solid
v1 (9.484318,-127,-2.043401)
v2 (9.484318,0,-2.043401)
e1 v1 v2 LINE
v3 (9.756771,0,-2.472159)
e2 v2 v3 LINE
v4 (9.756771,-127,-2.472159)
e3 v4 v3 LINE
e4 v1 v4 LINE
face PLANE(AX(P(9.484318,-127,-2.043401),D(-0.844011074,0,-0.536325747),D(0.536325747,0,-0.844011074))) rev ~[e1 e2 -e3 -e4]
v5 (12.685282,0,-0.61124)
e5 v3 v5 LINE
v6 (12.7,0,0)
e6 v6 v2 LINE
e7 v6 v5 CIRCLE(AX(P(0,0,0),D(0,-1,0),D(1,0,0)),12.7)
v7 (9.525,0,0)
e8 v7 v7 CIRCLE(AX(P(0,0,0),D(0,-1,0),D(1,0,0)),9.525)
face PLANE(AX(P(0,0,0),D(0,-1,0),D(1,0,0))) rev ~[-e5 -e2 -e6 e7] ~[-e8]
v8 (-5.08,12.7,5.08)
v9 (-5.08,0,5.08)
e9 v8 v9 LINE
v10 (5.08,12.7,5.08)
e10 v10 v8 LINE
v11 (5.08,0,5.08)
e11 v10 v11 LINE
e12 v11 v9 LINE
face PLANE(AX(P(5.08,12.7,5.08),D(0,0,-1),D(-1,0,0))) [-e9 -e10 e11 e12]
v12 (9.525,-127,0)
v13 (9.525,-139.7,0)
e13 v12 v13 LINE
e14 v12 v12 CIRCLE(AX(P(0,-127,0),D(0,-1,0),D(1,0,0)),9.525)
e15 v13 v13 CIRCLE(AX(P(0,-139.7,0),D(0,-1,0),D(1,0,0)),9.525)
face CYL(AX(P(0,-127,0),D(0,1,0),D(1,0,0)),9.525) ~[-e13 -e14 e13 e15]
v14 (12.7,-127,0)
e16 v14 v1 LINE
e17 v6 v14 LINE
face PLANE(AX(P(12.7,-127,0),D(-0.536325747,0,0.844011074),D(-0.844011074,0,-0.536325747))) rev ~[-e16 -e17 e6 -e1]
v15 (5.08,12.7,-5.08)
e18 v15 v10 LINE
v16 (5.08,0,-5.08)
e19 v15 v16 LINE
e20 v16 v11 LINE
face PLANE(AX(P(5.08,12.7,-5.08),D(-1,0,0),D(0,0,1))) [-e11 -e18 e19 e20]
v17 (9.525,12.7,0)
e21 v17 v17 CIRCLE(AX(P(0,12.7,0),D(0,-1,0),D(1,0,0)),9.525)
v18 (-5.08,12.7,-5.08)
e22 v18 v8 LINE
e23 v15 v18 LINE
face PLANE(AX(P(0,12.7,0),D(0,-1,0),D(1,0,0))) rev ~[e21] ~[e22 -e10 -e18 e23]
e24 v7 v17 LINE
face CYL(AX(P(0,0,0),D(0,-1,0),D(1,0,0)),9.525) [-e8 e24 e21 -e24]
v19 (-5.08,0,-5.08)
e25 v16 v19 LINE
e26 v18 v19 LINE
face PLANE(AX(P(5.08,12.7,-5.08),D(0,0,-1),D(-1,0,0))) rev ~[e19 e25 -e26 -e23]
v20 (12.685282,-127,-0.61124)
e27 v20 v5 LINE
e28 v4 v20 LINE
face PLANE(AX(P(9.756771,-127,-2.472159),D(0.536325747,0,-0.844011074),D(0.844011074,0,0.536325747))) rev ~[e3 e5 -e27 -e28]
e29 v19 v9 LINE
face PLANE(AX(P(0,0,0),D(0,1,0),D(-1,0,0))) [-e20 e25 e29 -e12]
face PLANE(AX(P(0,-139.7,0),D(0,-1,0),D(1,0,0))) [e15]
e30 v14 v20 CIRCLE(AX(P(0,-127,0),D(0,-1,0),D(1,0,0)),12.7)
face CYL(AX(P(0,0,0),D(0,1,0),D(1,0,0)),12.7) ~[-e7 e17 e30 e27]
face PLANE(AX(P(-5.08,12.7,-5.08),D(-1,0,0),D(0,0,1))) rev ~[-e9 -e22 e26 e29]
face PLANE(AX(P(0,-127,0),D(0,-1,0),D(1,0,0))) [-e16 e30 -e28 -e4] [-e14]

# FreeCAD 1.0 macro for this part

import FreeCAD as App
import Part
import Sketcher
Q = App.Units.Quantity


def add_polygon(sketch, points):
    """Adds a closed chain of lines whose ends are joined by coincident constraints."""
    first, n = sketch.GeometryCount, len(points)
    for a, b in zip(points, points[1:] + points[:1]):
        sketch.addGeometry(Part.LineSegment(App.Vector(*a, 0), App.Vector(*b, 0)), False)
    for i in range(n):
        sketch.addConstraint(Sketcher.Constraint("Coincident", first + i, 2, first + (i + 1) % n, 1))

doc = App.newDocument("Part")
params = doc.addObject("Spreadsheet::Sheet", "Params")
for row, (alias, value) in enumerate([
    ("sketch1_diameter", "1 in"),
    ("pad1_length", "5 in"),
    ("sketch2_diameter", "0.75 in"),
    ("pad2_length", "0.5 in"),
    ("sketch3_width", "0.4 in"),
    ("pocket1_length", "0.5 in"),
    ("sketch4_diameter", "0.75 in"),
    ("pad3_length", "0.5 in"),
    ("sketch5_length", "0.15 in"),
    ("sketch5_length2", "0.02 in"),
], start=1):
    params.set(f"A{row}", alias)
    params.set(f"B{row}", "=" + value)
    params.setAlias(f"B{row}", alias)

body = doc.addObject("PartDesign::Body", "Body")

sketch1 = body.newObject("Sketcher::SketchObject", "Sketch")
sketch1.AttachmentSupport = (doc.getObject("XZ_Plane"), [""])
sketch1.MapMode = "FlatFace"
sketch1.addGeometry(Part.Circle(App.Vector(0, 0, 0), App.Vector(0, 0, 1), 13), False)
sketch1.addConstraint(Sketcher.Constraint("Coincident", 0, 3, -1, 1))
sketch1.addConstraint(Sketcher.Constraint("Diameter", 0, Q("1 in")))
sketch1.setExpression("Constraints[1]", "Params.sketch1_diameter")
pad1 = body.newObject("PartDesign::Pad", "Pad")
pad1.Profile = sketch1
pad1.setExpression("Length", "Params.pad1_length")

sketch2 = body.newObject("Sketcher::SketchObject", "Sketch001")
sketch2.AttachmentSupport = (doc.getObject("XZ_Plane"), [""])
sketch2.MapMode = "FlatFace"
sketch2.addGeometry(Part.Circle(App.Vector(0, 0, 0), App.Vector(0, 0, 1), 10), False)
sketch2.addConstraint(Sketcher.Constraint("Coincident", 0, 3, -1, 1))
sketch2.addConstraint(Sketcher.Constraint("Diameter", 0, Q("0.75 in")))
sketch2.setExpression("Constraints[1]", "Params.sketch2_diameter")
pad2 = body.newObject("PartDesign::Pad", "Pad001")
pad2.Profile = sketch2
pad2.setExpression("Length", "Params.pad2_length")
pad2.Reversed = True

sketch3 = body.newObject("Sketcher::SketchObject", "Sketch002")
sketch3.AttachmentSupport = (doc.getObject("XZ_Plane"), [""])
sketch3.MapMode = "FlatFace"
sketch3.AttachmentOffset = App.Placement(App.Vector(0, 0, -0.5 * 25.4), App.Rotation())
add_polygon(sketch3, [(5, 5), (5, -5), (-5, -5), (-5, 5)])
sketch3.addConstraint(Sketcher.Constraint("Vertical", 0))
sketch3.addConstraint(Sketcher.Constraint("Horizontal", 1))
sketch3.addConstraint(Sketcher.Constraint("Vertical", 2))
sketch3.addConstraint(Sketcher.Constraint("Horizontal", 3))
sketch3.addConstraint(Sketcher.Constraint("Symmetric", 0, 2, 2, 2, -1, 1))
sketch3.addConstraint(Sketcher.Constraint("Equal", 3, 0))
sketch3.addConstraint(Sketcher.Constraint("DistanceX", 1, 2, 1, 1, Q("0.4 in")))
sketch3.setExpression("Constraints[10]", "Params.sketch3_width")
pocket1 = body.newObject("PartDesign::Pocket", "Pocket")
pocket1.Profile = sketch3
pocket1.setExpression("Length", "Params.pocket1_length")
pocket1.Reversed = True

sketch4 = body.newObject("Sketcher::SketchObject", "Sketch003")
sketch4.AttachmentSupport = (doc.getObject("XZ_Plane"), [""])
sketch4.MapMode = "FlatFace"
sketch4.AttachmentOffset = App.Placement(App.Vector(0, 0, 5 * 25.4), App.Rotation())
sketch4.addGeometry(Part.Circle(App.Vector(0, 0, 0), App.Vector(0, 0, 1), 10), False)
sketch4.addConstraint(Sketcher.Constraint("Coincident", 0, 3, -1, 1))
sketch4.addConstraint(Sketcher.Constraint("Diameter", 0, Q("0.75 in")))
sketch4.setExpression("Constraints[1]", "Params.sketch4_diameter")
pad3 = body.newObject("PartDesign::Pad", "Pad002")
pad3.Profile = sketch4
pad3.setExpression("Length", "Params.pad3_length")

sketch5 = body.newObject("Sketcher::SketchObject", "Sketch004")
sketch5.AttachmentSupport = (doc.getObject("XZ_Plane"), [""])
sketch5.MapMode = "FlatFace"
sketch5.AttachmentOffset = App.Placement(App.Vector(0, 0, 5 * 25.4), App.Rotation())
add_polygon(sketch5, [(14.5, 1.1), (12.7, 0), (9.5, -2), (9.8, -2.5), (14.8, 0.7)])
sketch5.addConstraint(Sketcher.Constraint("PointOnObject", 0, 2, -1))
sketch5.addConstraint(Sketcher.Constraint("Parallel", 0, 1))
sketch5.addConstraint(Sketcher.Constraint("Perpendicular", 1, 2))
sketch5.addConstraint(Sketcher.Constraint("Perpendicular", 2, 3))
sketch5.addConstraint(Sketcher.Constraint("Perpendicular", 3, 4))
sketch5.addConstraint(Sketcher.Constraint("DistanceX", -1, 1, 0, 2, Q("0.5 in")))
sketch5.addConstraint(Sketcher.Constraint("Distance", 1, Q("0.15 in")))
sketch5.addConstraint(Sketcher.Constraint("Distance", 2, Q("0.02 in")))
sketch5.addConstraint(Sketcher.Constraint("DistanceY", 1, 2, -1, 1, Q("2.043401 mm")))
sketch5.addConstraint(Sketcher.Constraint("DistanceX", -1, 1, 4, 2, Q("14.489841 mm")))
sketch5.setExpression("Constraints[11]", "Params.sketch5_length")
sketch5.setExpression("Constraints[12]", "Params.sketch5_length2")
pocket2 = body.newObject("PartDesign::Pocket", "Pocket001")
pocket2.Profile = sketch5
pocket2.Type = "ThroughAll"

doc.recompute()
